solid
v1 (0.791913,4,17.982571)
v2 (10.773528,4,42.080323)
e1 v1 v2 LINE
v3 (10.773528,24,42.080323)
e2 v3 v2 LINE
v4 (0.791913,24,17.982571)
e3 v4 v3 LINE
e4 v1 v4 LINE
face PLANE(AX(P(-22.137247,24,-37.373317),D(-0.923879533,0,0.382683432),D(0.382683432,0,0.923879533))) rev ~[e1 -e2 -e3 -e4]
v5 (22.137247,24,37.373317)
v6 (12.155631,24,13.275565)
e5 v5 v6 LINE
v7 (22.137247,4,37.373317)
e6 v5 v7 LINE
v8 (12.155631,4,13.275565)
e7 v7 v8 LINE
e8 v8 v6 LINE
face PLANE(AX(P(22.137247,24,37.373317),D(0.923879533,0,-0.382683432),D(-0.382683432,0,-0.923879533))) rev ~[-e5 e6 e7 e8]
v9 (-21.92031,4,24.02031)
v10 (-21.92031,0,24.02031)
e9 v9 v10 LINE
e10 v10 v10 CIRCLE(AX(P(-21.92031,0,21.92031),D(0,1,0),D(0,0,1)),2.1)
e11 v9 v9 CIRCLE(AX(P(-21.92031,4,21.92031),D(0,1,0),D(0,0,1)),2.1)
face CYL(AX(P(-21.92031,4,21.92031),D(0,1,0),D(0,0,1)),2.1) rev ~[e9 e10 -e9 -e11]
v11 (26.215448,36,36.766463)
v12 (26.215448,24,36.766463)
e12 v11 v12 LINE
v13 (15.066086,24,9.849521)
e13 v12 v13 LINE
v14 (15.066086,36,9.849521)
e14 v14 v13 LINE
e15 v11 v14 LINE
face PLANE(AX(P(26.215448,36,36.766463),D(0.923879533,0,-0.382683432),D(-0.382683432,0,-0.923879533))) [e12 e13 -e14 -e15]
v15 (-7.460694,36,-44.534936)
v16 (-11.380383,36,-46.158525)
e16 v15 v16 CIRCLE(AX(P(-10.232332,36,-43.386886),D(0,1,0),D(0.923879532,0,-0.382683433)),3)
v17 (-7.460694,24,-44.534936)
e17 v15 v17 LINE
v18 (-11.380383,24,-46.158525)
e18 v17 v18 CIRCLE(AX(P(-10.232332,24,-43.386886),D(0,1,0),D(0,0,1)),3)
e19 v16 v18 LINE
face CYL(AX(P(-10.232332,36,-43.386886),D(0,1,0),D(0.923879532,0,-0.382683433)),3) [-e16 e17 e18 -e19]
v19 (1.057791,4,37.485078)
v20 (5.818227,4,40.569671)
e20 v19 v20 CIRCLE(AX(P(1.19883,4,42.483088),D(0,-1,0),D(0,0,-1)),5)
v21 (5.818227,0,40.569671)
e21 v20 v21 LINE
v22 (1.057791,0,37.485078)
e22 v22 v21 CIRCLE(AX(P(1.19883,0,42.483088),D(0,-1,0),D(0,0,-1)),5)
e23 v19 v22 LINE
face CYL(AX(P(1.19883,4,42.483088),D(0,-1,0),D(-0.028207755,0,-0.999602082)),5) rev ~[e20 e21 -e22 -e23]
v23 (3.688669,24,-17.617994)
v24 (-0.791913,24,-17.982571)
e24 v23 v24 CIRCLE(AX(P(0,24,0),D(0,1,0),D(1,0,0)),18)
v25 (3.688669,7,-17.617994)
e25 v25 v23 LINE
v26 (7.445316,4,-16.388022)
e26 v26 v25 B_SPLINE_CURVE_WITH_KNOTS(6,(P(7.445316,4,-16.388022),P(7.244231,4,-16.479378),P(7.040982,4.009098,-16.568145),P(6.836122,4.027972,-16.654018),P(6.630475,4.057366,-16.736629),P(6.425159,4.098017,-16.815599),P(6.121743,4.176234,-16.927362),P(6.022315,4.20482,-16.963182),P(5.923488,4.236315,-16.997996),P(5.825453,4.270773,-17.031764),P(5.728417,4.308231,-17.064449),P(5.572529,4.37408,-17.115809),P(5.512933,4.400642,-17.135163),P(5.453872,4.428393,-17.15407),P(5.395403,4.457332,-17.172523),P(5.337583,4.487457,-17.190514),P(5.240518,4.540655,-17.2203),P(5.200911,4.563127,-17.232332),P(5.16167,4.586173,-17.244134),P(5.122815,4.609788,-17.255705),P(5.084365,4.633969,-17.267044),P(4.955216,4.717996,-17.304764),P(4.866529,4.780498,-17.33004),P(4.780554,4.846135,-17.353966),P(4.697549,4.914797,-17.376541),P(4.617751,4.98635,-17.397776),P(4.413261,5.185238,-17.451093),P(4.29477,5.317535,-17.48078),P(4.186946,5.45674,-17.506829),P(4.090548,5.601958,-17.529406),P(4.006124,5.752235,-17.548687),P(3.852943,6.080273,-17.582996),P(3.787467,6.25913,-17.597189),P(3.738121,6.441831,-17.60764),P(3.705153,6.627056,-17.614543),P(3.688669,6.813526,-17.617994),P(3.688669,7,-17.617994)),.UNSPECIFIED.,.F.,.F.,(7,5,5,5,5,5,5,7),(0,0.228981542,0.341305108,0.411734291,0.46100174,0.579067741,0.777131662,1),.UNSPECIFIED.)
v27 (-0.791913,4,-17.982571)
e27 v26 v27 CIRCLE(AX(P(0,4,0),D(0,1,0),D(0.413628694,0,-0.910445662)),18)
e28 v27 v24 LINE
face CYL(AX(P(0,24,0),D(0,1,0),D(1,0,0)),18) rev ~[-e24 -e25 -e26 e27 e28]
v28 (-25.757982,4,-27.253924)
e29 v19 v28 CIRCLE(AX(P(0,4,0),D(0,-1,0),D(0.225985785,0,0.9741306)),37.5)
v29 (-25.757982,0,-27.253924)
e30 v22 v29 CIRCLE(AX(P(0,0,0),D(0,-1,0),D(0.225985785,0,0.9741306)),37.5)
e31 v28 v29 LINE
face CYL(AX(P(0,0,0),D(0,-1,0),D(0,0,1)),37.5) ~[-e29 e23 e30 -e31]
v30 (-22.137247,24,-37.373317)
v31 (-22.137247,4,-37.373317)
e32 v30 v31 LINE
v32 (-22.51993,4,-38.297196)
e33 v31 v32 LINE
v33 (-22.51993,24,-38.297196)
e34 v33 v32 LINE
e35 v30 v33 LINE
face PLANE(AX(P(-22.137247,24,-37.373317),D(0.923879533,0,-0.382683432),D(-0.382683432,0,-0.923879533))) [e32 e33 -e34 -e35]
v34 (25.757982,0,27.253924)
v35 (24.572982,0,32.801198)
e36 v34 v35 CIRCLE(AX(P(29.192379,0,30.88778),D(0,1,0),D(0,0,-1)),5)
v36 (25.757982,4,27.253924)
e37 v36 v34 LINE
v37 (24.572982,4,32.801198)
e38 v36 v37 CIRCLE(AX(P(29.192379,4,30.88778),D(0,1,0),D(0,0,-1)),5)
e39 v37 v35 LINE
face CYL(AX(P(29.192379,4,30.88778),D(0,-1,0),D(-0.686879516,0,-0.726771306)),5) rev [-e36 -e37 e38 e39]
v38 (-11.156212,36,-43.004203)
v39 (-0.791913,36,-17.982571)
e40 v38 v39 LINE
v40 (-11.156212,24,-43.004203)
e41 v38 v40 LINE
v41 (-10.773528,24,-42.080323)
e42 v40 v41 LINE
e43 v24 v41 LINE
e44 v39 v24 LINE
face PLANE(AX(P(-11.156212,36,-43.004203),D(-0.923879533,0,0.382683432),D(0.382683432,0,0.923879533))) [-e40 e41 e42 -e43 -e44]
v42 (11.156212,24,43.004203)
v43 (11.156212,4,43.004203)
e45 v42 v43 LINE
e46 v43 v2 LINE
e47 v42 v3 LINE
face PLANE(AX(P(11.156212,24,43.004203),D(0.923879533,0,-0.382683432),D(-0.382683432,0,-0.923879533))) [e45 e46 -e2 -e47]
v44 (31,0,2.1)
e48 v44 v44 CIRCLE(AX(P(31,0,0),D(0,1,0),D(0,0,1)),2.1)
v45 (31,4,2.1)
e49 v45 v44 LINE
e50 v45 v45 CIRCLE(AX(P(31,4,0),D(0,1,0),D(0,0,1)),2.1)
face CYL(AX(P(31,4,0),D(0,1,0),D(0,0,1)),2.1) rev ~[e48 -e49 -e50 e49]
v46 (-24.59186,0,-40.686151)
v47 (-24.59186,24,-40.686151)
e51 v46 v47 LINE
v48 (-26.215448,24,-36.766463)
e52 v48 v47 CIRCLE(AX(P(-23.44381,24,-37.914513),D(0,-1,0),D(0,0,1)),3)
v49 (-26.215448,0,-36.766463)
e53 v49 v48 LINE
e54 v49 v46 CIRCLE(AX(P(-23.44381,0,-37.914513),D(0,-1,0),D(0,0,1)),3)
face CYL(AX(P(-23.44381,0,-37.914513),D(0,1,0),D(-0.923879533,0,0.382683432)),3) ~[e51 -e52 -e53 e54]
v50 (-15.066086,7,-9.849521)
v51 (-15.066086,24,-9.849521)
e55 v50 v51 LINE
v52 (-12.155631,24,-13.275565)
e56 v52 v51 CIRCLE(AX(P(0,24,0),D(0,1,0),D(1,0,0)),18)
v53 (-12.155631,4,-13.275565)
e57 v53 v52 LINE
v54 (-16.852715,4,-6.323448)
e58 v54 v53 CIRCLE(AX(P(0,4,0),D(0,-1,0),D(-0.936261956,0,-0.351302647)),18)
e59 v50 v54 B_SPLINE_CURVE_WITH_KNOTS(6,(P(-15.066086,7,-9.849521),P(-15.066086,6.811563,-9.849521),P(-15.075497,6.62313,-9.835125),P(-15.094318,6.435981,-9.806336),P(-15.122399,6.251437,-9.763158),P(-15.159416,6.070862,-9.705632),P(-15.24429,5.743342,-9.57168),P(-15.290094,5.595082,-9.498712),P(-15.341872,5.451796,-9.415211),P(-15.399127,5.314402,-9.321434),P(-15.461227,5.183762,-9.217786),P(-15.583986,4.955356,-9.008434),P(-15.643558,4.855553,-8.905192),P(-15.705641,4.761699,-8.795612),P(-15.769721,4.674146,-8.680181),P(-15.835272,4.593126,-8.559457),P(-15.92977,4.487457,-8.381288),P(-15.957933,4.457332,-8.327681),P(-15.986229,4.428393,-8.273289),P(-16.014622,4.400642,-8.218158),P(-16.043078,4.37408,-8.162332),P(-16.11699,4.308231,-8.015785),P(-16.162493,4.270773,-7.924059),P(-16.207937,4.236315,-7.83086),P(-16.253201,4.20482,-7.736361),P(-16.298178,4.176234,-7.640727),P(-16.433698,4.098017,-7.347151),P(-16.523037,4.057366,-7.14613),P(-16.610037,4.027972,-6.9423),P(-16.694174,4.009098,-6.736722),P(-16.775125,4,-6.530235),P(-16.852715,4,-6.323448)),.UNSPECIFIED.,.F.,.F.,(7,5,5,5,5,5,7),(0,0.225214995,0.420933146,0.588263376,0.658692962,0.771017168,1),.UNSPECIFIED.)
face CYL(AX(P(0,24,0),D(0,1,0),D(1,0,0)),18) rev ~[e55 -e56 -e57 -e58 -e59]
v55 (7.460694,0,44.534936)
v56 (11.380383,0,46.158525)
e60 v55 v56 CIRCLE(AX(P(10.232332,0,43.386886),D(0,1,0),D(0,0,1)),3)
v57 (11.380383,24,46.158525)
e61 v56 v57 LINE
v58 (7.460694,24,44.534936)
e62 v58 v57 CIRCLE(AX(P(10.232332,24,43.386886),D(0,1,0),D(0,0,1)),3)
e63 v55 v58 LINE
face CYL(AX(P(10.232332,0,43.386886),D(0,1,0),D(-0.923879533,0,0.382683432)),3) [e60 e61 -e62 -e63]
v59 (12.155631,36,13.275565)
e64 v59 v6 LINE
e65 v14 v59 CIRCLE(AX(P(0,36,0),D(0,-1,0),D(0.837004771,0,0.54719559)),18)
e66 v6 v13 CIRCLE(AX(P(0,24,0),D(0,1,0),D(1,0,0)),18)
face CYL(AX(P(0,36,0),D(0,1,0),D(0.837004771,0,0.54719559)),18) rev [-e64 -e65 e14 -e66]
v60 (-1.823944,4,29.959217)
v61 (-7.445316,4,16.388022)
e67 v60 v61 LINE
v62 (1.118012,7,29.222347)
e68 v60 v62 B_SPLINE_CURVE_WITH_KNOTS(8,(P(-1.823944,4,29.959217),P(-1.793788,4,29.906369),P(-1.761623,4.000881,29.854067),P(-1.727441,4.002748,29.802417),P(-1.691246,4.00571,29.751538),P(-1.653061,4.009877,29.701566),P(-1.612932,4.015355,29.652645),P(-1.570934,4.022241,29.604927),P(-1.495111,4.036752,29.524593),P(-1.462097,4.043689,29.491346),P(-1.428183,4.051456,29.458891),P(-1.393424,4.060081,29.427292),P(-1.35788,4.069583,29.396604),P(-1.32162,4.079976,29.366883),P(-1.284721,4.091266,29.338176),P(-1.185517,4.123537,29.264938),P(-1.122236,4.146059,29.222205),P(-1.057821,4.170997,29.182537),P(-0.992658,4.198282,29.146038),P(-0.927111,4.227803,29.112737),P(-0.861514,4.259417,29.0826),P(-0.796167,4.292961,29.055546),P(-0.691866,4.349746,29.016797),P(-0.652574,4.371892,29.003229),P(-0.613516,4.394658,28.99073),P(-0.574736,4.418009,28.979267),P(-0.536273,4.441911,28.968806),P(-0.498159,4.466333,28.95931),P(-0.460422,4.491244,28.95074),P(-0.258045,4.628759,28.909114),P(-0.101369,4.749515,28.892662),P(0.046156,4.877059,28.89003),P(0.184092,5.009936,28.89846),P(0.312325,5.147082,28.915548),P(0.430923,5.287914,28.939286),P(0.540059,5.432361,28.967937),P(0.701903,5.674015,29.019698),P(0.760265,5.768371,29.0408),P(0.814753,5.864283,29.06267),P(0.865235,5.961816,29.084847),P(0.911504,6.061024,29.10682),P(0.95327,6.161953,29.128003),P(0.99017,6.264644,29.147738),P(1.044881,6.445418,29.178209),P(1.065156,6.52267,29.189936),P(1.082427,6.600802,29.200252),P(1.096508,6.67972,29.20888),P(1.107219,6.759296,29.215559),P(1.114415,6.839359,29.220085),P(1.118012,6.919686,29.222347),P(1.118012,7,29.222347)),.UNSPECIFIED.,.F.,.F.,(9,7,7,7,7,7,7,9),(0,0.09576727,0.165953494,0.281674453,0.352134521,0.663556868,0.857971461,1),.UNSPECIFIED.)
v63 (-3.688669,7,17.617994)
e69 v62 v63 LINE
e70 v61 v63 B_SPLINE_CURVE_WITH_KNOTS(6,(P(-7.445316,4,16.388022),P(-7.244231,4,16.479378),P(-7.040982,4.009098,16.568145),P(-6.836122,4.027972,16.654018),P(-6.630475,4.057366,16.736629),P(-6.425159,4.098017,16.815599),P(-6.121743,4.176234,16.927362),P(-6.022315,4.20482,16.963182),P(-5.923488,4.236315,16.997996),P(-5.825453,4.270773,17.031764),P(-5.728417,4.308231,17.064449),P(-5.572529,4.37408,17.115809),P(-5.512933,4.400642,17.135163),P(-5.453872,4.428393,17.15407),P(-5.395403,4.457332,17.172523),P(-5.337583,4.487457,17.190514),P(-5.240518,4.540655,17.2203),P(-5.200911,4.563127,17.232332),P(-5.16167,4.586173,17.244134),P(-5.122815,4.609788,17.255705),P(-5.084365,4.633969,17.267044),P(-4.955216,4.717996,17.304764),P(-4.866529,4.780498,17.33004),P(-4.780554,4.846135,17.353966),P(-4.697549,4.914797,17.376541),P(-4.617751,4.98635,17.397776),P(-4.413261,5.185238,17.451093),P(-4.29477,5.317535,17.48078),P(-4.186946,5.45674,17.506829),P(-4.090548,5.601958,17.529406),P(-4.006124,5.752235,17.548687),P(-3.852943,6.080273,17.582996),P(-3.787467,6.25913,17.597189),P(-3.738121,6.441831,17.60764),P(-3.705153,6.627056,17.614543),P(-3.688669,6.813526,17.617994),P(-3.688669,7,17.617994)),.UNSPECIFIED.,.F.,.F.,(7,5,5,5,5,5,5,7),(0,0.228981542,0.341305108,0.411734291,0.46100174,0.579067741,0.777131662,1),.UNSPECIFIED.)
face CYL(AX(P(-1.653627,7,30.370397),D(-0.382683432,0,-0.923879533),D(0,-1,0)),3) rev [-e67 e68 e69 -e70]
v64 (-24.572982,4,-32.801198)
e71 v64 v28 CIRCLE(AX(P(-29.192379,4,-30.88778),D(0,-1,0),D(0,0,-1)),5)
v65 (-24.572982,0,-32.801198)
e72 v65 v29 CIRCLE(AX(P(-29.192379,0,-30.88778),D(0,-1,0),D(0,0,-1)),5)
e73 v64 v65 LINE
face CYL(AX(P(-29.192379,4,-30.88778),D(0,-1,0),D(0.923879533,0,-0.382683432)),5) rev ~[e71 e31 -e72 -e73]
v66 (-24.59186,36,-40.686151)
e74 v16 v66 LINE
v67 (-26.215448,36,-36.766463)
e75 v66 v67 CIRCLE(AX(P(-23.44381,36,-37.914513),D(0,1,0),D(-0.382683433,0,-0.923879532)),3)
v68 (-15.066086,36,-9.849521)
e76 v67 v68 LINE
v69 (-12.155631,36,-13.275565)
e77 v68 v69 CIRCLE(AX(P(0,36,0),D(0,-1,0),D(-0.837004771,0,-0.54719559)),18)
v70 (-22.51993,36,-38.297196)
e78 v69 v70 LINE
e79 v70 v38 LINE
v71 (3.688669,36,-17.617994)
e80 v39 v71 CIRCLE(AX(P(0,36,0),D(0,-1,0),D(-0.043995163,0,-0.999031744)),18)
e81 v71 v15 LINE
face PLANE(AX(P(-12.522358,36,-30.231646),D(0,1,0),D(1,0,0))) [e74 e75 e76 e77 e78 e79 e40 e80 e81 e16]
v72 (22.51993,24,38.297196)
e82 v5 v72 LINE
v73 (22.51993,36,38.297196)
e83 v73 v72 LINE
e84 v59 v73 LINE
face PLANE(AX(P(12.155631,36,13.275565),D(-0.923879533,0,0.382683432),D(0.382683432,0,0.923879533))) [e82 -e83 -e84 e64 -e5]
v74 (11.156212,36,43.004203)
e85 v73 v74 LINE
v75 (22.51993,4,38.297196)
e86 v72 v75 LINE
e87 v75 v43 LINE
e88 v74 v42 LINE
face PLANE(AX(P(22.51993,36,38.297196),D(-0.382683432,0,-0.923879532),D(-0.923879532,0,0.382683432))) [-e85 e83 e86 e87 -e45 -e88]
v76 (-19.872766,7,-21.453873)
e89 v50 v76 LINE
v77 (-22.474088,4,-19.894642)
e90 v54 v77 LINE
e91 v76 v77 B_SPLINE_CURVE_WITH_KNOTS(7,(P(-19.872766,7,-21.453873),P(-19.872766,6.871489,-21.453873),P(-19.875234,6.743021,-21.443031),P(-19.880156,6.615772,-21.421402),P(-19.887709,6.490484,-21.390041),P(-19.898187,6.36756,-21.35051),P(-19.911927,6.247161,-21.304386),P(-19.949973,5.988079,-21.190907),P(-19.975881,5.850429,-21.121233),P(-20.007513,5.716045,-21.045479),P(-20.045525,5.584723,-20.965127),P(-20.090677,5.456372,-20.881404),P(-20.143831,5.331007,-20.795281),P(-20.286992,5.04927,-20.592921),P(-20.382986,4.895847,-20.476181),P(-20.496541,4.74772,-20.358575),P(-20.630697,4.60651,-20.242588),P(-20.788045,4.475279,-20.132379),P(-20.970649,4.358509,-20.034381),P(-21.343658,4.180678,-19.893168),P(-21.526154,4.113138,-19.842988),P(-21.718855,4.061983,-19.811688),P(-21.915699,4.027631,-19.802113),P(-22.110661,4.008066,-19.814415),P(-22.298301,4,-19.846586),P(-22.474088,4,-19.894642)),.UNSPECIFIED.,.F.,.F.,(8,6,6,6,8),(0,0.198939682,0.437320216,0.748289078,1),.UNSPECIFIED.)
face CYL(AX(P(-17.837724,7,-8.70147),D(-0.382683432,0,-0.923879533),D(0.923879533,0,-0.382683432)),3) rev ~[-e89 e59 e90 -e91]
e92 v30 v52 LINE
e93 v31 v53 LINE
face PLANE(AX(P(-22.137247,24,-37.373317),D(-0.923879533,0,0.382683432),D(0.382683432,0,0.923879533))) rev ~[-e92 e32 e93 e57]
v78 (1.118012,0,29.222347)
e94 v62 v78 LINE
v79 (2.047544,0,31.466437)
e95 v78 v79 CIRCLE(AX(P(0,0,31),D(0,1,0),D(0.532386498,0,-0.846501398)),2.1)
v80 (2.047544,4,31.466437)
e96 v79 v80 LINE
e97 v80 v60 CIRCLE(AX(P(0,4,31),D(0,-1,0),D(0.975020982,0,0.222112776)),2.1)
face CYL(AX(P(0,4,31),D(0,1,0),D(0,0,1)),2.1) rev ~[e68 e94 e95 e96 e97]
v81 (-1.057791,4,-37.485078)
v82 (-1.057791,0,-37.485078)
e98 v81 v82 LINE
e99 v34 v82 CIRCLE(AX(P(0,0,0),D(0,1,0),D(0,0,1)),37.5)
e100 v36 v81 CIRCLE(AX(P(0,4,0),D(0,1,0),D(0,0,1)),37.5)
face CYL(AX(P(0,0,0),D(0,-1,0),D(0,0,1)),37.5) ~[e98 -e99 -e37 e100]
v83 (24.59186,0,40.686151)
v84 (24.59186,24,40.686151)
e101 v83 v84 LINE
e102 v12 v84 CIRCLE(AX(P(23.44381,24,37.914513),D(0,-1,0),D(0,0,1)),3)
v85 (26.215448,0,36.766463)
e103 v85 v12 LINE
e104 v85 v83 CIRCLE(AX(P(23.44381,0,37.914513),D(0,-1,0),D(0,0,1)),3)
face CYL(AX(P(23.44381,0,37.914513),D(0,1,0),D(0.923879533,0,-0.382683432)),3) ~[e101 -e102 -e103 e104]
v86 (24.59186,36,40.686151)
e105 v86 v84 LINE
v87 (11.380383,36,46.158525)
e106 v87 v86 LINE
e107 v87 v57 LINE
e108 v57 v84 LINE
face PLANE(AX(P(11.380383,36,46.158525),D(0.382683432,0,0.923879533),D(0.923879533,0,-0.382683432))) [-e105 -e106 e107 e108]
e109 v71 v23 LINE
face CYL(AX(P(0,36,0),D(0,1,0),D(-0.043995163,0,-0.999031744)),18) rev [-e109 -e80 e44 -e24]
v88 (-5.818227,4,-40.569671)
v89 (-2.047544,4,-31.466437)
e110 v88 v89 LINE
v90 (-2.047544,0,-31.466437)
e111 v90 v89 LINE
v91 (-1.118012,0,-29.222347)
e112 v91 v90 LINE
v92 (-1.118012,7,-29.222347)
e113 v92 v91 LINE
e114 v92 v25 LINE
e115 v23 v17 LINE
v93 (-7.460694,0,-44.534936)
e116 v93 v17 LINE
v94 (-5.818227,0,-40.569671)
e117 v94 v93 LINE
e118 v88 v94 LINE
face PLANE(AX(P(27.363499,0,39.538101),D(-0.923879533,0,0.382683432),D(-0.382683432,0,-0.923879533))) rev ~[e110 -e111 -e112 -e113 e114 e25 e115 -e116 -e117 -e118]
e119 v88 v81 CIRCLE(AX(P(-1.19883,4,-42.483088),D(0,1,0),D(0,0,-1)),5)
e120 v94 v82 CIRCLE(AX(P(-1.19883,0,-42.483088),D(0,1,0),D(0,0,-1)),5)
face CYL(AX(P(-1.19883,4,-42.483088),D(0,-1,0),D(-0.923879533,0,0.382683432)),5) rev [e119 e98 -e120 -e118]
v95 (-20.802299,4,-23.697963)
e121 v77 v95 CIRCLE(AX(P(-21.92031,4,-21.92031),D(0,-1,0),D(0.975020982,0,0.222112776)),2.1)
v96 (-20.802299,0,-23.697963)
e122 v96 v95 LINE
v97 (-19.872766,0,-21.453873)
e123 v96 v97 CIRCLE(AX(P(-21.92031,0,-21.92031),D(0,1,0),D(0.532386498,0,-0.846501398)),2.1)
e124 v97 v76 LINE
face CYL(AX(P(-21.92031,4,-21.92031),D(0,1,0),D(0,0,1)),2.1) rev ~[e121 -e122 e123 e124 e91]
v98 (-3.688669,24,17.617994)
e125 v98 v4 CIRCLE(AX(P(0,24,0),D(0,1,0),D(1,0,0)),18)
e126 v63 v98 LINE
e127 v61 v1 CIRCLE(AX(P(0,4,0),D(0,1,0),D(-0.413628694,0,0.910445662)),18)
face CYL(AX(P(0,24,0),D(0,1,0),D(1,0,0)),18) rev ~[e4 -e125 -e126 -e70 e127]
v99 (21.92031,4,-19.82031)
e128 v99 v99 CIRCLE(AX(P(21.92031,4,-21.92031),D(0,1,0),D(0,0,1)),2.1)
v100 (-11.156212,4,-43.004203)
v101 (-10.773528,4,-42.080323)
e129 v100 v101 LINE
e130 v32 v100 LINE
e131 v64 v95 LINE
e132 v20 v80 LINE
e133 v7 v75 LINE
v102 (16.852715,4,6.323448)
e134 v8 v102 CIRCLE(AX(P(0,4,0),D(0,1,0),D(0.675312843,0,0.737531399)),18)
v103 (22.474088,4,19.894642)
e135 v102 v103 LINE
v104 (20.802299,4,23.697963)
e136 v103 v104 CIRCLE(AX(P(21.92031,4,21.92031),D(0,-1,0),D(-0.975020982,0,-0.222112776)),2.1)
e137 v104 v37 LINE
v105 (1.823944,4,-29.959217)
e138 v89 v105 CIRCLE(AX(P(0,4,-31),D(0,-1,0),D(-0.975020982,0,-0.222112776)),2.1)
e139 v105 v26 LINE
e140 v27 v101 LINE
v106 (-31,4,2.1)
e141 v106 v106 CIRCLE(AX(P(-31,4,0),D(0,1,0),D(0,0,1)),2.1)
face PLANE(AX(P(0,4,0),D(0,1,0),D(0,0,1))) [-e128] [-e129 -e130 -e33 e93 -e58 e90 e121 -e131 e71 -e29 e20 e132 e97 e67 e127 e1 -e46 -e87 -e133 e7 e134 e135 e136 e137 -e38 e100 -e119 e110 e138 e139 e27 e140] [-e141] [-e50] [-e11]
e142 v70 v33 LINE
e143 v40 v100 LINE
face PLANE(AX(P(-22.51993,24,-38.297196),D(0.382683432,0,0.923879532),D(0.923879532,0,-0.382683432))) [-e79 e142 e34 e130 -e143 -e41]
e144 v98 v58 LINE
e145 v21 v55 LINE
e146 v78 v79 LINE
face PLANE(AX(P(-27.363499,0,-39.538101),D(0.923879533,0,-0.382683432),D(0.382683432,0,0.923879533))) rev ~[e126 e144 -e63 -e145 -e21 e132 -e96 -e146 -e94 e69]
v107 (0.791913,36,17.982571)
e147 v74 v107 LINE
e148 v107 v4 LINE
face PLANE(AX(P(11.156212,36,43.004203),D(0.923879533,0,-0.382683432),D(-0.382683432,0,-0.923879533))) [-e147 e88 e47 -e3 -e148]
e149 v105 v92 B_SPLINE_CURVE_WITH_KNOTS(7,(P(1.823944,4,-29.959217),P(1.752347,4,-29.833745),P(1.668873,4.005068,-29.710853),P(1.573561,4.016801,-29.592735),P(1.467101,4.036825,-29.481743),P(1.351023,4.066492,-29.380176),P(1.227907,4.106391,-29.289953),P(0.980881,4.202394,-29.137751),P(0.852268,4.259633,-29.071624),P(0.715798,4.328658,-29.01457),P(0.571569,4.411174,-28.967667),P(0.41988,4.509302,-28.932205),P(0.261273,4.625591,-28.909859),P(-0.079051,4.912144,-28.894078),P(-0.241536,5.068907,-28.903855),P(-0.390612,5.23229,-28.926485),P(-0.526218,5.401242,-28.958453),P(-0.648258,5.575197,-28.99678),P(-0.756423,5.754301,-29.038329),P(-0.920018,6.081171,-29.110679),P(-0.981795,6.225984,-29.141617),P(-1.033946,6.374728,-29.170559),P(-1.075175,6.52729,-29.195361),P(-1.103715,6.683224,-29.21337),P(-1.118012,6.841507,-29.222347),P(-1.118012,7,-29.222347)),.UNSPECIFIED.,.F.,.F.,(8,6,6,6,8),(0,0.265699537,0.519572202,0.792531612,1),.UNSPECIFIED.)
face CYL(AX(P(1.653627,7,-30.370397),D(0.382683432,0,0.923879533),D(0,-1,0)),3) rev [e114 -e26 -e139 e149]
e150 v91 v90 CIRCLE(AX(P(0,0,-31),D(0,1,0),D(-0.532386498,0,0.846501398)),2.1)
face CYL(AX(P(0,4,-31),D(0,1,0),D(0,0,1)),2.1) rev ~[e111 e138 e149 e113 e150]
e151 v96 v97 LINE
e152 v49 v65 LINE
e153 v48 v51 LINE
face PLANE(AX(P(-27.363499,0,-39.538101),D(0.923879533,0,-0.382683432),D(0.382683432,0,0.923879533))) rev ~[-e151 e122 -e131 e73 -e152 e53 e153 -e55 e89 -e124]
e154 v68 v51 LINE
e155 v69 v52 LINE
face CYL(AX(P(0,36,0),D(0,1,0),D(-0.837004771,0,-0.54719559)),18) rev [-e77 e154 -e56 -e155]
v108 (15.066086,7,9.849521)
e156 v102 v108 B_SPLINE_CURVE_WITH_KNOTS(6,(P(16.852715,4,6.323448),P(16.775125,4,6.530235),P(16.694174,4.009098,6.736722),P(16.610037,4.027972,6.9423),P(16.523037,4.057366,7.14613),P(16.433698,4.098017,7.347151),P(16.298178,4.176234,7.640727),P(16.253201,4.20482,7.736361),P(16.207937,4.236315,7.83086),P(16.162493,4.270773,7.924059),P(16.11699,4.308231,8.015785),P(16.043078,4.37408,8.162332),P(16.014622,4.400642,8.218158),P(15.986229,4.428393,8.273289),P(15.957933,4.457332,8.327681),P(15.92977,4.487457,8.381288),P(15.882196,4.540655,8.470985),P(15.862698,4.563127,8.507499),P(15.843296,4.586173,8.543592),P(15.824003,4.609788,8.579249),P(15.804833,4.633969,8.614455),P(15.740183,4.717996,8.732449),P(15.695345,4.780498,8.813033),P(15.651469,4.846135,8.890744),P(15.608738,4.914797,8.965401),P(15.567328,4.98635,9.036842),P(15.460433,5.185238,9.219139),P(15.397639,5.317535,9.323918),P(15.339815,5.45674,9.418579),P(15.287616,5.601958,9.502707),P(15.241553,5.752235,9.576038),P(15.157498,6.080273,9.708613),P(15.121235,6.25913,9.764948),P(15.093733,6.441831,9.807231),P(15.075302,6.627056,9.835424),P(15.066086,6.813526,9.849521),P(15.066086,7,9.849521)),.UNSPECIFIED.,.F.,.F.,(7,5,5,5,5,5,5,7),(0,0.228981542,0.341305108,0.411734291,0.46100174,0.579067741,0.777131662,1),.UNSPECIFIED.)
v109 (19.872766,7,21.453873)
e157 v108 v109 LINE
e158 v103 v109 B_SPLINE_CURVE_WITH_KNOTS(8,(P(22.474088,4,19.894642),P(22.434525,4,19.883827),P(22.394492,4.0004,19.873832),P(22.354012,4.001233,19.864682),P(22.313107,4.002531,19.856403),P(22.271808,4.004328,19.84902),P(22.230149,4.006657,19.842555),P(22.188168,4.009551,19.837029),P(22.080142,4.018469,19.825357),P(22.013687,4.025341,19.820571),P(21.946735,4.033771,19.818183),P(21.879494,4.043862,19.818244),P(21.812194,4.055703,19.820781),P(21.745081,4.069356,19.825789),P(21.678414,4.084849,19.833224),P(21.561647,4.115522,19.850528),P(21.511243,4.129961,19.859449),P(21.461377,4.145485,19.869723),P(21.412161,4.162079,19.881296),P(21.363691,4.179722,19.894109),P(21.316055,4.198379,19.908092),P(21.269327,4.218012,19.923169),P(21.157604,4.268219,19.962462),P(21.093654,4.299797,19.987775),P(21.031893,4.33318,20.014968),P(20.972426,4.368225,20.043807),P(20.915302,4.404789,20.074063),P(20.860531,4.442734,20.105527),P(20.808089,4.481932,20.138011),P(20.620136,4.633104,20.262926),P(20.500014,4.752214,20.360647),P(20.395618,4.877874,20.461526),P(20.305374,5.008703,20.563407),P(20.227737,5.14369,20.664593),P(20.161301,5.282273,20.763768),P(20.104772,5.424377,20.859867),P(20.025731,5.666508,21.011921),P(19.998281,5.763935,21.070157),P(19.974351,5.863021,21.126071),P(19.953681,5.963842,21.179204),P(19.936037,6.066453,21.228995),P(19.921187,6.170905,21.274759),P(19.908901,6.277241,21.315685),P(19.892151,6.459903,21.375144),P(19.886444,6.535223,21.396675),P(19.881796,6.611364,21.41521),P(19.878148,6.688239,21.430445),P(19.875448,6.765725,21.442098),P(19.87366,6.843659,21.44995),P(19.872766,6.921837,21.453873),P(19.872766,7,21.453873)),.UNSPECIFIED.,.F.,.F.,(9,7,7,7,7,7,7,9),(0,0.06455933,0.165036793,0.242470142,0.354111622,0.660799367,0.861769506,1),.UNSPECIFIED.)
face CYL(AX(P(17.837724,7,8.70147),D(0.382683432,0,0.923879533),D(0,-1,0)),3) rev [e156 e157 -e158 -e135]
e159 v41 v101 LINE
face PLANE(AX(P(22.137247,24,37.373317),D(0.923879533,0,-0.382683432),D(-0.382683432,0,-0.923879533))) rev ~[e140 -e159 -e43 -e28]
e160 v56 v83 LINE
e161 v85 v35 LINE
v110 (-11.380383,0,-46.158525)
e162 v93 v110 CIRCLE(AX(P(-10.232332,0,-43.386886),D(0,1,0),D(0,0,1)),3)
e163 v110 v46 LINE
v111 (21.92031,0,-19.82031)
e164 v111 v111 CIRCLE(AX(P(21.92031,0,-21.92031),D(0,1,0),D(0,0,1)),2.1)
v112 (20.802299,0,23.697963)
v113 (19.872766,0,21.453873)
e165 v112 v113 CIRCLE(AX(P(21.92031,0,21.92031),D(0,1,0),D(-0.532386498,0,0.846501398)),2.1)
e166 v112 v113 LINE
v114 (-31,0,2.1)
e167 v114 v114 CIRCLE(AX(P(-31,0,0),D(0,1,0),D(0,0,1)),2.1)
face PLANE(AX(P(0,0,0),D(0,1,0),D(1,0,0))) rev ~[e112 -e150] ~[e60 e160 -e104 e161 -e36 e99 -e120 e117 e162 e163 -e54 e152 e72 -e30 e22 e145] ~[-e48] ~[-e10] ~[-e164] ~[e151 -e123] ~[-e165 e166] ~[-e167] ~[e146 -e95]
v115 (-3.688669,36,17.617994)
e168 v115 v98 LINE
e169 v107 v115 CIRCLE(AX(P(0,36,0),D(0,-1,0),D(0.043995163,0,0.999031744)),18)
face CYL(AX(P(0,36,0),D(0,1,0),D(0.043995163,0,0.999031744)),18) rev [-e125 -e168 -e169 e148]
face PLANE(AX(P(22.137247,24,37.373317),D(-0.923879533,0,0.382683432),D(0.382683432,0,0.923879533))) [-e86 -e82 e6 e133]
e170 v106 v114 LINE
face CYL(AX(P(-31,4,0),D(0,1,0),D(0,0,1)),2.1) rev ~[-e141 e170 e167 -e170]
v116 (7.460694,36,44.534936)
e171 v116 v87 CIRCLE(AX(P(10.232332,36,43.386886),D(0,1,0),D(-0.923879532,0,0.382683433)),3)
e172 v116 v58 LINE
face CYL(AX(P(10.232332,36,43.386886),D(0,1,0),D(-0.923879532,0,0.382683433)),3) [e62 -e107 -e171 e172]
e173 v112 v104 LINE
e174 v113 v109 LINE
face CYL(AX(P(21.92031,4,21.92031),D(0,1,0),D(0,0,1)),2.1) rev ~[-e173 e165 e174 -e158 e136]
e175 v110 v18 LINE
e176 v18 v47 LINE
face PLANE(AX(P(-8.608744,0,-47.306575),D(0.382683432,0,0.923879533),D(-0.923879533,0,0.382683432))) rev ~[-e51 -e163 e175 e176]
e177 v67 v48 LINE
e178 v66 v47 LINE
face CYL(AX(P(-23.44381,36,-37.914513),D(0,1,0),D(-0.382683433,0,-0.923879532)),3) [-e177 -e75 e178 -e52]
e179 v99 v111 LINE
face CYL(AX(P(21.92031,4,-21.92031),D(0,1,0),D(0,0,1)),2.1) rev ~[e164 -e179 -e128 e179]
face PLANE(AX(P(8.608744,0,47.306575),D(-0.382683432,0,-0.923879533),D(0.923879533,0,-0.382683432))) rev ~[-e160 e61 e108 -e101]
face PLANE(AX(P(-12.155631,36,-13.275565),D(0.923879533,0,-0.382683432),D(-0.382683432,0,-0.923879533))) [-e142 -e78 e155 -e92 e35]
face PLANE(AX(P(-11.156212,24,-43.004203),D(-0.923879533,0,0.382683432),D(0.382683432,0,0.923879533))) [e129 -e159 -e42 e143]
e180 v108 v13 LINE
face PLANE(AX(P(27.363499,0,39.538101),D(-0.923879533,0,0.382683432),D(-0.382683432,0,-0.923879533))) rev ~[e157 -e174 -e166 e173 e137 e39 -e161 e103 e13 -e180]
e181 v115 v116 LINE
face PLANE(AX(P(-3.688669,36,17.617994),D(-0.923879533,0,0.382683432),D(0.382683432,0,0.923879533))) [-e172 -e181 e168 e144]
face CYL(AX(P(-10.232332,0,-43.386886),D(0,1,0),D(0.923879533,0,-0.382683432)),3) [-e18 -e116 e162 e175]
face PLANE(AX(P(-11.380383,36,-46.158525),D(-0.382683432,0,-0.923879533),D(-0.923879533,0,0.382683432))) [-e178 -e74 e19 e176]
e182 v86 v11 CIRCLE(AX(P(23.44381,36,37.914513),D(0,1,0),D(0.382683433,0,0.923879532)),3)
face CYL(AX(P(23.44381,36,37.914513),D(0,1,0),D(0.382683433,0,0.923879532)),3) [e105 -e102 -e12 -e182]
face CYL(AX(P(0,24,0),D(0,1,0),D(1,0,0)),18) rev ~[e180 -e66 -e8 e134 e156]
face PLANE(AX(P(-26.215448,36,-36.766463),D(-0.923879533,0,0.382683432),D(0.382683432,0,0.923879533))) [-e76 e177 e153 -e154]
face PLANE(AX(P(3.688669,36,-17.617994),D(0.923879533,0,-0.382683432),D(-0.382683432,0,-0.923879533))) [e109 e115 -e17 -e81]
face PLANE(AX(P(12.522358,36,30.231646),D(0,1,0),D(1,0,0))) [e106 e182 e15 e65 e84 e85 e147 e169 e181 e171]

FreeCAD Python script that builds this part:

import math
import FreeCAD as App
import Part
import Sketcher
Q = App.Units.Quantity


def edges_at(feature, points):
    """Names of the edges that pass closest to the given points."""
    edges = feature.Shape.Edges
    near = lambda p: min(range(len(edges)), key=lambda i: edges[i].distToShape(Part.Vertex(*p))[0])
    return sorted({f"Edge{near(p) + 1}" for p in points})

doc = App.newDocument("Part")
body = doc.addObject("PartDesign::Body", "Body")

# Sketch on XZ plane
sketch1 = body.newObject("Sketcher::SketchObject", "Sketch")
sketch1.AttachmentSupport = (doc.getObject("XZ_Plane"), [""])
sketch1.MapMode = "FlatFace"
sketch1.addGeometry(Part.Circle(App.Vector(0, 0, 0), App.Vector(0, 0, 1), 38), False)
sketch1.addConstraint(Sketcher.Constraint("Coincident", 0, 3, -1, 1))
sketch1.addConstraint(Sketcher.Constraint("Diameter", 0, Q("75 mm")))
pad1 = body.newObject("PartDesign::Pad", "Pad")
pad1.Profile = sketch1
pad1.Length = 4
pad1.Reversed = True

# Sketch on XZ plane
sketch2 = body.newObject("Sketcher::SketchObject", "Sketch001")
sketch2.AttachmentSupport = (doc.getObject("XZ_Plane"), [""])
sketch2.MapMode = "FlatFace"
sketch2.AttachmentOffset = App.Placement(App.Vector(0, 0, -4), App.Rotation())
sketch2.addGeometry(Part.Circle(App.Vector(0, -31, 0), App.Vector(0, 0, 1), 2.1), False)
sketch2.addGeometry(Part.Circle(App.Vector(21.9, -21.9, 0), App.Vector(0, 0, 1), 2.1), False)
sketch2.addGeometry(Part.Circle(App.Vector(31, 0, 0), App.Vector(0, 0, 1), 2.1), False)
sketch2.addGeometry(Part.Circle(App.Vector(21.9, 21.9, 0), App.Vector(0, 0, 1), 2.1), False)
sketch2.addGeometry(Part.Circle(App.Vector(0, 31, 0), App.Vector(0, 0, 1), 2.1), False)
sketch2.addGeometry(Part.Circle(App.Vector(-21.9, 21.9, 0), App.Vector(0, 0, 1), 2.1), False)
sketch2.addGeometry(Part.Circle(App.Vector(-31, 0, 0), App.Vector(0, 0, 1), 2.1), False)
sketch2.addGeometry(Part.Circle(App.Vector(-21.9, -21.9, 0), App.Vector(0, 0, 1), 2.1), False)
sketch2.addConstraint(Sketcher.Constraint("Equal", 0, 1))
sketch2.addConstraint(Sketcher.Constraint("Equal", 1, 2))
sketch2.addConstraint(Sketcher.Constraint("Equal", 2, 3))
sketch2.addConstraint(Sketcher.Constraint("Equal", 3, 4))
sketch2.addConstraint(Sketcher.Constraint("Equal", 4, 5))
sketch2.addConstraint(Sketcher.Constraint("Equal", 5, 6))
sketch2.addConstraint(Sketcher.Constraint("Equal", 6, 7))
sketch2.addConstraint(Sketcher.Constraint("Symmetric", 0, 3, 4, 3, -1, 1))
sketch2.addConstraint(Sketcher.Constraint("Symmetric", 1, 3, 5, 3, -1, 1))
sketch2.addConstraint(Sketcher.Constraint("Symmetric", 2, 3, 6, 3, -1, 1))
sketch2.addConstraint(Sketcher.Constraint("Symmetric", 3, 3, 7, 3, -1, 1))
sketch2.addConstraint(Sketcher.Constraint("Symmetric", 3, 3, 5, 3, -2))
sketch2.addConstraint(Sketcher.Constraint("PointOnObject", 0, 3, -2))
sketch2.addConstraint(Sketcher.Constraint("PointOnObject", 2, 3, -1))
sketch2.addConstraint(Sketcher.Constraint("Diameter", 0, Q("4.2 mm")))
sketch2.addConstraint(Sketcher.Constraint("DistanceY", 0, 3, -1, 1, Q("31 mm")))
sketch2.addConstraint(Sketcher.Constraint("DistanceX", -1, 1, 2, 3, Q("31 mm")))
sketch2.addConstraint(Sketcher.Constraint("DistanceX", -1, 1, 1, 3, Q("21.92031 mm")))
sketch2.addConstraint(Sketcher.Constraint("DistanceY", 1, 3, -1, 1, Q("21.92031 mm")))
pocket1 = body.newObject("PartDesign::Pocket", "Pocket")
pocket1.Profile = sketch2
pocket1.Length = 4
pocket1.Reversed = True

# Sketch on XZ plane
sketch3 = body.newObject("Sketcher::SketchObject", "Sketch002")
sketch3.AttachmentSupport = (doc.getObject("XZ_Plane"), [""])
sketch3.MapMode = "FlatFace"
sketch3.AttachmentOffset = App.Placement(App.Vector(0, 0, -4), App.Rotation())
sketch3.addGeometry(Part.LineSegment(App.Vector(20, 32, 0), App.Vector(-8, -37, 0)), False)
sketch3.addGeometry(Part.LineSegment(App.Vector(-8, -37, 0), App.Vector(-11, -42, 0)), False)
sketch3.addGeometry(Part.LineSegment(App.Vector(-11, -42, 0), App.Vector(-22, -37, 0)), False)
sketch3.addGeometry(Part.LineSegment(App.Vector(-22, -37, 0), App.Vector(-20, -32, 0)), False)
sketch3.addGeometry(Part.LineSegment(App.Vector(-20, -32, 0), App.Vector(8, 37, 0)), False)
sketch3.addGeometry(Part.LineSegment(App.Vector(8, 37, 0), App.Vector(11, 42, 0)), False)
sketch3.addGeometry(Part.LineSegment(App.Vector(11, 42, 0), App.Vector(22, 37, 0)), False)
sketch3.addGeometry(Part.LineSegment(App.Vector(22, 37, 0), App.Vector(20, 32, 0)), False)
sketch3.addConstraint(Sketcher.Constraint("Coincident", 0, 2, 1, 1))
sketch3.addConstraint(Sketcher.Constraint("Coincident", 1, 2, 2, 1))
sketch3.addConstraint(Sketcher.Constraint("Coincident", 2, 2, 3, 1))
sketch3.addConstraint(Sketcher.Constraint("Coincident", 3, 2, 4, 1))
sketch3.addConstraint(Sketcher.Constraint("Coincident", 4, 2, 5, 1))
sketch3.addConstraint(Sketcher.Constraint("Coincident", 5, 2, 6, 1))
sketch3.addConstraint(Sketcher.Constraint("Coincident", 6, 2, 7, 1))
sketch3.addConstraint(Sketcher.Constraint("Coincident", 7, 2, 0, 1))
sketch3.addConstraint(Sketcher.Constraint("Symmetric", 0, 2, 4, 2, -1, 1))
sketch3.addConstraint(Sketcher.Constraint("Symmetric", 1, 2, 5, 2, -1, 1))
sketch3.addConstraint(Sketcher.Constraint("Symmetric", 2, 2, 6, 2, -1, 1))
sketch3.addConstraint(Sketcher.Constraint("Symmetric", 3, 2, 7, 2, -1, 1))
sketch3.addConstraint(Sketcher.Constraint("Parallel", 0, 1))
sketch3.addConstraint(Sketcher.Constraint("Perpendicular", 1, 2))
sketch3.addConstraint(Sketcher.Constraint("Perpendicular", 2, 3))
sketch3.addConstraint(Sketcher.Constraint("Equal", 1, 3))
sketch3.addConstraint(Sketcher.Constraint("Angle", 0, Q("-112.5 deg")))
sketch3.addConstraint(Sketcher.Constraint("Distance", 2, Q("12.3 mm")))
sketch3.addConstraint(Sketcher.Constraint("DistanceX", 1, 2, -1, 1, Q("10.773528 mm")))
sketch3.addConstraint(Sketcher.Constraint("DistanceY", 3, 2, -1, 1, Q("31.822891 mm")))
pad2 = body.newObject("PartDesign::Pad", "Pad001")
pad2.Profile = sketch3
pad2.Type = "TwoLengths"
pad2.Length = 20
pad2.Length2 = 4
pad2.Reversed = True

# Sketch on XZ plane
sketch4 = body.newObject("Sketcher::SketchObject", "Sketch003")
sketch4.AttachmentSupport = (doc.getObject("XZ_Plane"), [""])
sketch4.MapMode = "FlatFace"
sketch4.AttachmentOffset = App.Placement(App.Vector(0, 0, -4), App.Rotation())
sketch4.addGeometry(Part.LineSegment(App.Vector(-27, -40, 0), App.Vector(9, 47, 0)), False)
sketch4.addGeometry(Part.LineSegment(App.Vector(9, 47, 0), App.Vector(27, 40, 0)), False)
sketch4.addGeometry(Part.LineSegment(App.Vector(27, 40, 0), App.Vector(-9, -47, 0)), False)
sketch4.addGeometry(Part.LineSegment(App.Vector(-9, -47, 0), App.Vector(-27, -40, 0)), False)
sketch4.addGeometry(Part.LineSegment(App.Vector(11, 42, 0), App.Vector(-22, -37, 0)), False)
sketch4.addGeometry(Part.LineSegment(App.Vector(-22, -37, 0), App.Vector(-11, -42, 0)), False)
sketch4.addGeometry(Part.LineSegment(App.Vector(-11, -42, 0), App.Vector(22, 37, 0)), False)
sketch4.addGeometry(Part.LineSegment(App.Vector(22, 37, 0), App.Vector(11, 42, 0)), False)
sketch4.addConstraint(Sketcher.Constraint("Coincident", 0, 2, 1, 1))
sketch4.addConstraint(Sketcher.Constraint("Coincident", 1, 2, 2, 1))
sketch4.addConstraint(Sketcher.Constraint("Coincident", 2, 2, 3, 1))
sketch4.addConstraint(Sketcher.Constraint("Coincident", 3, 2, 0, 1))
sketch4.addConstraint(Sketcher.Constraint("Coincident", 4, 2, 5, 1))
sketch4.addConstraint(Sketcher.Constraint("Coincident", 5, 2, 6, 1))
sketch4.addConstraint(Sketcher.Constraint("Coincident", 6, 2, 7, 1))
sketch4.addConstraint(Sketcher.Constraint("Coincident", 7, 2, 4, 1))
sketch4.addConstraint(Sketcher.Constraint("Symmetric", 0, 2, 2, 2, -1, 1))
sketch4.addConstraint(Sketcher.Constraint("Symmetric", 1, 2, 3, 2, -1, 1))
sketch4.addConstraint(Sketcher.Constraint("Symmetric", 4, 2, 6, 2, -1, 1))
sketch4.addConstraint(Sketcher.Constraint("Symmetric", 5, 2, 7, 2, -1, 1))
sketch4.addConstraint(Sketcher.Constraint("Perpendicular", 0, 1))
sketch4.addConstraint(Sketcher.Constraint("Perpendicular", 3, 4))
sketch4.addConstraint(Sketcher.Constraint("Perpendicular", 4, 5))
sketch4.addConstraint(Sketcher.Constraint("Distance", 0, Q("94 mm")))
sketch4.addConstraint(Sketcher.Constraint("Distance", 4, Q("86 mm")))
sketch4.addConstraint(Sketcher.Constraint("Angle", 0, Q("67.5 deg")))
sketch4.addConstraint(Sketcher.Constraint("Distance", 1, Q("20.3 mm")))
sketch4.addConstraint(Sketcher.Constraint("Distance", 5, Q("12.3 mm")))
pad3 = body.newObject("PartDesign::Pad", "Pad002")
pad3.Profile = sketch4
pad3.Type = "TwoLengths"
pad3.Length = 20
pad3.Length2 = 4
pad3.Reversed = True

# Sketch on XZ plane
sketch5 = body.newObject("Sketcher::SketchObject", "Sketch004")
sketch5.AttachmentSupport = (doc.getObject("XZ_Plane"), [""])
sketch5.MapMode = "FlatFace"
sketch5.AttachmentOffset = App.Placement(App.Vector(0, 0, -24), App.Rotation())
sketch5.addGeometry(Part.LineSegment(App.Vector(-11, -42, 0), App.Vector(-22, -37, 0)), False)
sketch5.addGeometry(Part.LineSegment(App.Vector(-22, -37, 0), App.Vector(11, 42, 0)), False)
sketch5.addGeometry(Part.LineSegment(App.Vector(11, 42, 0), App.Vector(22, 37, 0)), False)
sketch5.addGeometry(Part.LineSegment(App.Vector(22, 37, 0), App.Vector(-11, -42, 0)), False)
sketch5.addConstraint(Sketcher.Constraint("Coincident", 0, 2, 1, 1))
sketch5.addConstraint(Sketcher.Constraint("Coincident", 1, 2, 2, 1))
sketch5.addConstraint(Sketcher.Constraint("Coincident", 2, 2, 3, 1))
sketch5.addConstraint(Sketcher.Constraint("Coincident", 3, 2, 0, 1))
sketch5.addConstraint(Sketcher.Constraint("Symmetric", 0, 2, 2, 2, -1, 1))
sketch5.addConstraint(Sketcher.Constraint("Symmetric", 1, 2, 3, 2, -1, 1))
sketch5.addConstraint(Sketcher.Constraint("Perpendicular", 0, 1))
sketch5.addConstraint(Sketcher.Constraint("Distance", 1, Q("86 mm")))
sketch5.addConstraint(Sketcher.Constraint("Angle", 0, Q("157.5 deg")))
sketch5.addConstraint(Sketcher.Constraint("Distance", 0, Q("12.3 mm")))
pocket2 = body.newObject("PartDesign::Pocket", "Pocket001")
pocket2.Profile = sketch5
pocket2.Length = 20
pocket2.Reversed = True

# Sketch on XZ plane
sketch6 = body.newObject("Sketcher::SketchObject", "Sketch005")
sketch6.AttachmentSupport = (doc.getObject("XZ_Plane"), [""])
sketch6.MapMode = "FlatFace"
sketch6.AttachmentOffset = App.Placement(App.Vector(0, 0, -24), App.Rotation())
sketch6.addGeometry(Part.Circle(App.Vector(0, 0, 0), App.Vector(0, 0, 1), 18), False)
sketch6.addConstraint(Sketcher.Constraint("Coincident", 0, 3, -1, 1))
sketch6.addConstraint(Sketcher.Constraint("Diameter", 0, Q("36 mm")))
pocket3 = body.newObject("PartDesign::Pocket", "Pocket002")
pocket3.Profile = sketch6
pocket3.Length = 20
pocket3.Reversed = True
doc.recompute()

fillet = body.newObject("PartDesign::Fillet", "Fillet")
fillet.Base = (pocket3, edges_at(pocket3, [
    (1.285, 4, -23.42),
    (-1.285, 4, 23.42),
    (-17.469, 4, -15.652),
    (17.469, 4, 15.652),
]))
fillet.Radius = 3
doc.recompute()

fillet2 = body.newObject("PartDesign::Fillet", "Fillet001")
fillet2.Base = (fillet, edges_at(fillet, [
    (8.609, 12, 47.307),
    (-8.609, 12, -47.307),
    (-27.363, 12, -39.538),
    (27.363, 12, 39.538),
]))
fillet2.Radius = 3
doc.recompute()

fillet3 = body.newObject("PartDesign::Fillet", "Fillet002")
fillet3.Base = (fillet2, edges_at(fillet2, [
    (-23.192, 2, -29.468),
    (4.438, 2, 37.237),
    (23.192, 2, 29.468),
    (-4.438, 2, -37.237),
]))
fillet3.Radius = 5

# Sketch on XZ plane
sketch7 = body.newObject("Sketcher::SketchObject", "Sketch006")
sketch7.AttachmentSupport = (doc.getObject("XZ_Plane"), [""])
sketch7.MapMode = "FlatFace"
sketch7.AttachmentOffset = App.Placement(App.Vector(0, 0, -24), App.Rotation())
sketch7.addGeometry(Part.LineSegment(App.Vector(22.1, 37.4, 0), App.Vector(10.8, 42.1, 0)), False)
sketch7.addGeometry(Part.LineSegment(App.Vector(10.8, 42.1, 0), App.Vector(11.2, 43, 0)), False)
sketch7.addGeometry(Part.LineSegment(App.Vector(11.2, 43, 0), App.Vector(22.5, 38.3, 0)), False)
sketch7.addGeometry(Part.LineSegment(App.Vector(22.5, 38.3, 0), App.Vector(22.1, 37.4, 0)), False)
sketch7.addGeometry(Part.LineSegment(App.Vector(-22.1, -37.4, 0), App.Vector(-10.8, -42.1, 0)), False)
sketch7.addGeometry(Part.LineSegment(App.Vector(-10.8, -42.1, 0), App.Vector(-11.2, -43, 0)), False)
sketch7.addGeometry(Part.LineSegment(App.Vector(-11.2, -43, 0), App.Vector(-22.5, -38.3, 0)), False)
sketch7.addGeometry(Part.LineSegment(App.Vector(-22.5, -38.3, 0), App.Vector(-22.1, -37.4, 0)), False)
sketch7.addConstraint(Sketcher.Constraint("Coincident", 0, 2, 1, 1))
sketch7.addConstraint(Sketcher.Constraint("Coincident", 1, 2, 2, 1))
sketch7.addConstraint(Sketcher.Constraint("Coincident", 2, 2, 3, 1))
sketch7.addConstraint(Sketcher.Constraint("Coincident", 3, 2, 0, 1))
sketch7.addConstraint(Sketcher.Constraint("Coincident", 4, 2, 5, 1))
sketch7.addConstraint(Sketcher.Constraint("Coincident", 5, 2, 6, 1))
sketch7.addConstraint(Sketcher.Constraint("Coincident", 6, 2, 7, 1))
sketch7.addConstraint(Sketcher.Constraint("Coincident", 7, 2, 4, 1))
sketch7.addConstraint(Sketcher.Constraint("Symmetric", 0, 2, 4, 2, -1, 1))
sketch7.addConstraint(Sketcher.Constraint("Symmetric", 1, 2, 5, 2, -1, 1))
sketch7.addConstraint(Sketcher.Constraint("Symmetric", 2, 2, 6, 2, -1, 1))
sketch7.addConstraint(Sketcher.Constraint("Symmetric", 3, 2, 7, 2, -1, 1))
sketch7.addConstraint(Sketcher.Constraint("Perpendicular", 0, 1))
sketch7.addConstraint(Sketcher.Constraint("Perpendicular", 1, 2))
sketch7.addConstraint(Sketcher.Constraint("Perpendicular", 2, 3))
sketch7.addConstraint(Sketcher.Constraint("Distance", 1, Q("1 mm")))
sketch7.addConstraint(Sketcher.Constraint("Angle", 0, Q("157.5 deg")))
sketch7.addConstraint(Sketcher.Constraint("Distance", 0, Q("12.3 mm")))
sketch7.addConstraint(Sketcher.Constraint("DistanceY", 5, 2, 2, 2, Q("81.301399 mm")))
sketch7.addConstraint(Sketcher.Constraint("DistanceX", -1, 1, 0, 2, Q("10.773528 mm")))
pocket4 = body.newObject("PartDesign::Pocket", "Pocket003")
pocket4.Profile = sketch7
pocket4.Length = 20
pocket4.Reversed = True

# Sketch on XZ plane
sketch8 = body.newObject("Sketcher::SketchObject", "Sketch007")
sketch8.AttachmentSupport = (doc.getObject("XZ_Plane"), [""])
sketch8.MapMode = "FlatFace"
sketch8.AttachmentOffset = App.Placement(App.Vector(0, 0, -36), App.Rotation())
sketch8.addGeometry(Part.LineSegment(App.Vector(22.5, 38.3, 0), App.Vector(11.2, 43, 0)), False)
sketch8.addGeometry(Part.LineSegment(App.Vector(11.2, 43, 0), App.Vector(0.8, 18, 0)), False)
sketch8.addGeometry(Part.ArcOfCircle(Part.Circle(App.Vector(0, 0, 0), App.Vector(0, 0, 1), 18), math.radians(87.48), math.radians(101.83)), False)
sketch8.addGeometry(Part.LineSegment(App.Vector(-3.7, 17.6, 0), App.Vector(7.5, 44.5, 0)), False)
sketch8.addGeometry(Part.ArcOfCircle(Part.Circle(App.Vector(10.2, 43.4, 0), App.Vector(0, 0, 1), 3), math.radians(68), math.radians(157)), False)
sketch8.addGeometry(Part.LineSegment(App.Vector(11.4, 46.2, 0), App.Vector(24.6, 40.7, 0)), False)
sketch8.addGeometry(Part.ArcOfCircle(Part.Circle(App.Vector(23.4, 37.9, 0), App.Vector(0, 0, 1), 3), math.radians(-22), math.radians(67)), False)
sketch8.addGeometry(Part.LineSegment(App.Vector(26.2, 36.8, 0), App.Vector(15.1, 9.8, 0)), False)
sketch8.addGeometry(Part.ArcOfCircle(Part.Circle(App.Vector(0, 0, 0), App.Vector(0, 0, 1), 18), math.radians(33.17), math.radians(47.52)), False)
sketch8.addGeometry(Part.LineSegment(App.Vector(12.2, 13.3, 0), App.Vector(22.5, 38.3, 0)), False)
sketch8.addGeometry(Part.LineSegment(App.Vector(-22.5, -38.3, 0), App.Vector(-11.2, -43, 0)), False)
sketch8.addGeometry(Part.LineSegment(App.Vector(-11.2, -43, 0), App.Vector(-0.8, -18, 0)), False)
sketch8.addGeometry(Part.ArcOfCircle(Part.Circle(App.Vector(0, 0, 0), App.Vector(0, 0, 1), 18), math.radians(-92.52), math.radians(-78.17)), False)
sketch8.addGeometry(Part.LineSegment(App.Vector(3.7, -17.6, 0), App.Vector(-7.5, -44.5, 0)), False)
sketch8.addGeometry(Part.ArcOfCircle(Part.Circle(App.Vector(-10.2, -43.4, 0), App.Vector(0, 0, 1), 3), math.radians(-112), math.radians(-23)), False)
sketch8.addGeometry(Part.LineSegment(App.Vector(-11.4, -46.2, 0), App.Vector(-24.6, -40.7, 0)), False)
sketch8.addGeometry(Part.ArcOfCircle(Part.Circle(App.Vector(-23.4, -37.9, 0), App.Vector(0, 0, 1), 3), math.radians(158), math.radians(247)), False)
sketch8.addGeometry(Part.LineSegment(App.Vector(-26.2, -36.8, 0), App.Vector(-15.1, -9.8, 0)), False)
sketch8.addGeometry(Part.ArcOfCircle(Part.Circle(App.Vector(0, 0, 0), App.Vector(0, 0, 1), 18), math.radians(-146.83), math.radians(-132.48)), False)
sketch8.addGeometry(Part.LineSegment(App.Vector(-12.2, -13.3, 0), App.Vector(-22.5, -38.3, 0)), False)
sketch8.addConstraint(Sketcher.Constraint("Coincident", 0, 2, 1, 1))
sketch8.addConstraint(Sketcher.Constraint("Coincident", 1, 2, 2, 1))
sketch8.addConstraint(Sketcher.Constraint("Coincident", 2, 2, 3, 1))
sketch8.addConstraint(Sketcher.Constraint("Tangent", 3, 2, 4, 2))
sketch8.addConstraint(Sketcher.Constraint("Tangent", 4, 1, 5, 1))
sketch8.addConstraint(Sketcher.Constraint("Tangent", 5, 2, 6, 2))
sketch8.addConstraint(Sketcher.Constraint("Tangent", 6, 1, 7, 1))
sketch8.addConstraint(Sketcher.Constraint("Coincident", 7, 2, 8, 1))
sketch8.addConstraint(Sketcher.Constraint("Coincident", 8, 2, 9, 1))
sketch8.addConstraint(Sketcher.Constraint("Coincident", 9, 2, 0, 1))
sketch8.addConstraint(Sketcher.Constraint("Coincident", 10, 2, 11, 1))
sketch8.addConstraint(Sketcher.Constraint("Coincident", 11, 2, 12, 1))
sketch8.addConstraint(Sketcher.Constraint("Coincident", 12, 2, 13, 1))
sketch8.addConstraint(Sketcher.Constraint("Tangent", 13, 2, 14, 2))
sketch8.addConstraint(Sketcher.Constraint("Tangent", 14, 1, 15, 1))
sketch8.addConstraint(Sketcher.Constraint("Tangent", 15, 2, 16, 2))
sketch8.addConstraint(Sketcher.Constraint("Tangent", 16, 1, 17, 1))
sketch8.addConstraint(Sketcher.Constraint("Coincident", 17, 2, 18, 1))
sketch8.addConstraint(Sketcher.Constraint("Coincident", 18, 2, 19, 1))
sketch8.addConstraint(Sketcher.Constraint("Coincident", 19, 2, 10, 1))
sketch8.addConstraint(Sketcher.Constraint("Coincident", 2, 3, -1, 1))
sketch8.addConstraint(Sketcher.Constraint("Coincident", 8, 3, -1, 1))
sketch8.addConstraint(Sketcher.Constraint("Coincident", 12, 3, -1, 1))
sketch8.addConstraint(Sketcher.Constraint("Coincident", 18, 3, -1, 1))
sketch8.addConstraint(Sketcher.Constraint("Equal", 4, 6))
sketch8.addConstraint(Sketcher.Constraint("Equal", 2, 8))
sketch8.addConstraint(Sketcher.Constraint("Equal", 8, 12))
sketch8.addConstraint(Sketcher.Constraint("Equal", 6, 14))
sketch8.addConstraint(Sketcher.Constraint("Equal", 14, 16))
sketch8.addConstraint(Sketcher.Constraint("Equal", 12, 18))
sketch8.addConstraint(Sketcher.Constraint("Symmetric", 4, 3, 14, 3, -1, 1))
sketch8.addConstraint(Sketcher.Constraint("Symmetric", 6, 3, 16, 3, -1, 1))
sketch8.addConstraint(Sketcher.Constraint("Symmetric", 0, 2, 10, 2, -1, 1))
sketch8.addConstraint(Sketcher.Constraint("Symmetric", 9, 2, 19, 2, -1, 1))
sketch8.addConstraint(Sketcher.Constraint("Perpendicular", 0, 1))
sketch8.addConstraint(Sketcher.Constraint("Parallel", 1, 3))
sketch8.addConstraint(Sketcher.Constraint("Perpendicular", 3, 5))
sketch8.addConstraint(Sketcher.Constraint("Perpendicular", 5, 7))
sketch8.addConstraint(Sketcher.Constraint("Parallel", 7, 9))
sketch8.addConstraint(Sketcher.Constraint("Perpendicular", 10, 11))
sketch8.addConstraint(Sketcher.Constraint("Parallel", 11, 13))
sketch8.addConstraint(Sketcher.Constraint("Perpendicular", 15, 17))
sketch8.addConstraint(Sketcher.Constraint("Parallel", 17, 19))
sketch8.addConstraint(Sketcher.Constraint("Equal", 3, 7))
sketch8.addConstraint(Sketcher.Constraint("Equal", 1, 9))
sketch8.addConstraint(Sketcher.Constraint("Radius", 2, Q("18 mm")))
sketch8.addConstraint(Sketcher.Constraint("Radius", 4, Q("3 mm")))
sketch8.addConstraint(Sketcher.Constraint("Angle", 0, Q("157.5 deg")))
sketch8.addConstraint(Sketcher.Constraint("Distance", 0, Q("12.3 mm")))
sketch8.addConstraint(Sketcher.Constraint("Distance", 5, Q("14.3 mm")))
sketch8.addConstraint(Sketcher.Constraint("DistanceY", 14, 3, 6, 3, Q("81.301399 mm")))
sketch8.addConstraint(Sketcher.Constraint("DistanceX", 1, 2, 0, 2, Q("10.364299 mm")))
pad4 = body.newObject("PartDesign::Pad", "Pad003")
pad4.Profile = sketch8
pad4.Length = 12

doc.recompute()
